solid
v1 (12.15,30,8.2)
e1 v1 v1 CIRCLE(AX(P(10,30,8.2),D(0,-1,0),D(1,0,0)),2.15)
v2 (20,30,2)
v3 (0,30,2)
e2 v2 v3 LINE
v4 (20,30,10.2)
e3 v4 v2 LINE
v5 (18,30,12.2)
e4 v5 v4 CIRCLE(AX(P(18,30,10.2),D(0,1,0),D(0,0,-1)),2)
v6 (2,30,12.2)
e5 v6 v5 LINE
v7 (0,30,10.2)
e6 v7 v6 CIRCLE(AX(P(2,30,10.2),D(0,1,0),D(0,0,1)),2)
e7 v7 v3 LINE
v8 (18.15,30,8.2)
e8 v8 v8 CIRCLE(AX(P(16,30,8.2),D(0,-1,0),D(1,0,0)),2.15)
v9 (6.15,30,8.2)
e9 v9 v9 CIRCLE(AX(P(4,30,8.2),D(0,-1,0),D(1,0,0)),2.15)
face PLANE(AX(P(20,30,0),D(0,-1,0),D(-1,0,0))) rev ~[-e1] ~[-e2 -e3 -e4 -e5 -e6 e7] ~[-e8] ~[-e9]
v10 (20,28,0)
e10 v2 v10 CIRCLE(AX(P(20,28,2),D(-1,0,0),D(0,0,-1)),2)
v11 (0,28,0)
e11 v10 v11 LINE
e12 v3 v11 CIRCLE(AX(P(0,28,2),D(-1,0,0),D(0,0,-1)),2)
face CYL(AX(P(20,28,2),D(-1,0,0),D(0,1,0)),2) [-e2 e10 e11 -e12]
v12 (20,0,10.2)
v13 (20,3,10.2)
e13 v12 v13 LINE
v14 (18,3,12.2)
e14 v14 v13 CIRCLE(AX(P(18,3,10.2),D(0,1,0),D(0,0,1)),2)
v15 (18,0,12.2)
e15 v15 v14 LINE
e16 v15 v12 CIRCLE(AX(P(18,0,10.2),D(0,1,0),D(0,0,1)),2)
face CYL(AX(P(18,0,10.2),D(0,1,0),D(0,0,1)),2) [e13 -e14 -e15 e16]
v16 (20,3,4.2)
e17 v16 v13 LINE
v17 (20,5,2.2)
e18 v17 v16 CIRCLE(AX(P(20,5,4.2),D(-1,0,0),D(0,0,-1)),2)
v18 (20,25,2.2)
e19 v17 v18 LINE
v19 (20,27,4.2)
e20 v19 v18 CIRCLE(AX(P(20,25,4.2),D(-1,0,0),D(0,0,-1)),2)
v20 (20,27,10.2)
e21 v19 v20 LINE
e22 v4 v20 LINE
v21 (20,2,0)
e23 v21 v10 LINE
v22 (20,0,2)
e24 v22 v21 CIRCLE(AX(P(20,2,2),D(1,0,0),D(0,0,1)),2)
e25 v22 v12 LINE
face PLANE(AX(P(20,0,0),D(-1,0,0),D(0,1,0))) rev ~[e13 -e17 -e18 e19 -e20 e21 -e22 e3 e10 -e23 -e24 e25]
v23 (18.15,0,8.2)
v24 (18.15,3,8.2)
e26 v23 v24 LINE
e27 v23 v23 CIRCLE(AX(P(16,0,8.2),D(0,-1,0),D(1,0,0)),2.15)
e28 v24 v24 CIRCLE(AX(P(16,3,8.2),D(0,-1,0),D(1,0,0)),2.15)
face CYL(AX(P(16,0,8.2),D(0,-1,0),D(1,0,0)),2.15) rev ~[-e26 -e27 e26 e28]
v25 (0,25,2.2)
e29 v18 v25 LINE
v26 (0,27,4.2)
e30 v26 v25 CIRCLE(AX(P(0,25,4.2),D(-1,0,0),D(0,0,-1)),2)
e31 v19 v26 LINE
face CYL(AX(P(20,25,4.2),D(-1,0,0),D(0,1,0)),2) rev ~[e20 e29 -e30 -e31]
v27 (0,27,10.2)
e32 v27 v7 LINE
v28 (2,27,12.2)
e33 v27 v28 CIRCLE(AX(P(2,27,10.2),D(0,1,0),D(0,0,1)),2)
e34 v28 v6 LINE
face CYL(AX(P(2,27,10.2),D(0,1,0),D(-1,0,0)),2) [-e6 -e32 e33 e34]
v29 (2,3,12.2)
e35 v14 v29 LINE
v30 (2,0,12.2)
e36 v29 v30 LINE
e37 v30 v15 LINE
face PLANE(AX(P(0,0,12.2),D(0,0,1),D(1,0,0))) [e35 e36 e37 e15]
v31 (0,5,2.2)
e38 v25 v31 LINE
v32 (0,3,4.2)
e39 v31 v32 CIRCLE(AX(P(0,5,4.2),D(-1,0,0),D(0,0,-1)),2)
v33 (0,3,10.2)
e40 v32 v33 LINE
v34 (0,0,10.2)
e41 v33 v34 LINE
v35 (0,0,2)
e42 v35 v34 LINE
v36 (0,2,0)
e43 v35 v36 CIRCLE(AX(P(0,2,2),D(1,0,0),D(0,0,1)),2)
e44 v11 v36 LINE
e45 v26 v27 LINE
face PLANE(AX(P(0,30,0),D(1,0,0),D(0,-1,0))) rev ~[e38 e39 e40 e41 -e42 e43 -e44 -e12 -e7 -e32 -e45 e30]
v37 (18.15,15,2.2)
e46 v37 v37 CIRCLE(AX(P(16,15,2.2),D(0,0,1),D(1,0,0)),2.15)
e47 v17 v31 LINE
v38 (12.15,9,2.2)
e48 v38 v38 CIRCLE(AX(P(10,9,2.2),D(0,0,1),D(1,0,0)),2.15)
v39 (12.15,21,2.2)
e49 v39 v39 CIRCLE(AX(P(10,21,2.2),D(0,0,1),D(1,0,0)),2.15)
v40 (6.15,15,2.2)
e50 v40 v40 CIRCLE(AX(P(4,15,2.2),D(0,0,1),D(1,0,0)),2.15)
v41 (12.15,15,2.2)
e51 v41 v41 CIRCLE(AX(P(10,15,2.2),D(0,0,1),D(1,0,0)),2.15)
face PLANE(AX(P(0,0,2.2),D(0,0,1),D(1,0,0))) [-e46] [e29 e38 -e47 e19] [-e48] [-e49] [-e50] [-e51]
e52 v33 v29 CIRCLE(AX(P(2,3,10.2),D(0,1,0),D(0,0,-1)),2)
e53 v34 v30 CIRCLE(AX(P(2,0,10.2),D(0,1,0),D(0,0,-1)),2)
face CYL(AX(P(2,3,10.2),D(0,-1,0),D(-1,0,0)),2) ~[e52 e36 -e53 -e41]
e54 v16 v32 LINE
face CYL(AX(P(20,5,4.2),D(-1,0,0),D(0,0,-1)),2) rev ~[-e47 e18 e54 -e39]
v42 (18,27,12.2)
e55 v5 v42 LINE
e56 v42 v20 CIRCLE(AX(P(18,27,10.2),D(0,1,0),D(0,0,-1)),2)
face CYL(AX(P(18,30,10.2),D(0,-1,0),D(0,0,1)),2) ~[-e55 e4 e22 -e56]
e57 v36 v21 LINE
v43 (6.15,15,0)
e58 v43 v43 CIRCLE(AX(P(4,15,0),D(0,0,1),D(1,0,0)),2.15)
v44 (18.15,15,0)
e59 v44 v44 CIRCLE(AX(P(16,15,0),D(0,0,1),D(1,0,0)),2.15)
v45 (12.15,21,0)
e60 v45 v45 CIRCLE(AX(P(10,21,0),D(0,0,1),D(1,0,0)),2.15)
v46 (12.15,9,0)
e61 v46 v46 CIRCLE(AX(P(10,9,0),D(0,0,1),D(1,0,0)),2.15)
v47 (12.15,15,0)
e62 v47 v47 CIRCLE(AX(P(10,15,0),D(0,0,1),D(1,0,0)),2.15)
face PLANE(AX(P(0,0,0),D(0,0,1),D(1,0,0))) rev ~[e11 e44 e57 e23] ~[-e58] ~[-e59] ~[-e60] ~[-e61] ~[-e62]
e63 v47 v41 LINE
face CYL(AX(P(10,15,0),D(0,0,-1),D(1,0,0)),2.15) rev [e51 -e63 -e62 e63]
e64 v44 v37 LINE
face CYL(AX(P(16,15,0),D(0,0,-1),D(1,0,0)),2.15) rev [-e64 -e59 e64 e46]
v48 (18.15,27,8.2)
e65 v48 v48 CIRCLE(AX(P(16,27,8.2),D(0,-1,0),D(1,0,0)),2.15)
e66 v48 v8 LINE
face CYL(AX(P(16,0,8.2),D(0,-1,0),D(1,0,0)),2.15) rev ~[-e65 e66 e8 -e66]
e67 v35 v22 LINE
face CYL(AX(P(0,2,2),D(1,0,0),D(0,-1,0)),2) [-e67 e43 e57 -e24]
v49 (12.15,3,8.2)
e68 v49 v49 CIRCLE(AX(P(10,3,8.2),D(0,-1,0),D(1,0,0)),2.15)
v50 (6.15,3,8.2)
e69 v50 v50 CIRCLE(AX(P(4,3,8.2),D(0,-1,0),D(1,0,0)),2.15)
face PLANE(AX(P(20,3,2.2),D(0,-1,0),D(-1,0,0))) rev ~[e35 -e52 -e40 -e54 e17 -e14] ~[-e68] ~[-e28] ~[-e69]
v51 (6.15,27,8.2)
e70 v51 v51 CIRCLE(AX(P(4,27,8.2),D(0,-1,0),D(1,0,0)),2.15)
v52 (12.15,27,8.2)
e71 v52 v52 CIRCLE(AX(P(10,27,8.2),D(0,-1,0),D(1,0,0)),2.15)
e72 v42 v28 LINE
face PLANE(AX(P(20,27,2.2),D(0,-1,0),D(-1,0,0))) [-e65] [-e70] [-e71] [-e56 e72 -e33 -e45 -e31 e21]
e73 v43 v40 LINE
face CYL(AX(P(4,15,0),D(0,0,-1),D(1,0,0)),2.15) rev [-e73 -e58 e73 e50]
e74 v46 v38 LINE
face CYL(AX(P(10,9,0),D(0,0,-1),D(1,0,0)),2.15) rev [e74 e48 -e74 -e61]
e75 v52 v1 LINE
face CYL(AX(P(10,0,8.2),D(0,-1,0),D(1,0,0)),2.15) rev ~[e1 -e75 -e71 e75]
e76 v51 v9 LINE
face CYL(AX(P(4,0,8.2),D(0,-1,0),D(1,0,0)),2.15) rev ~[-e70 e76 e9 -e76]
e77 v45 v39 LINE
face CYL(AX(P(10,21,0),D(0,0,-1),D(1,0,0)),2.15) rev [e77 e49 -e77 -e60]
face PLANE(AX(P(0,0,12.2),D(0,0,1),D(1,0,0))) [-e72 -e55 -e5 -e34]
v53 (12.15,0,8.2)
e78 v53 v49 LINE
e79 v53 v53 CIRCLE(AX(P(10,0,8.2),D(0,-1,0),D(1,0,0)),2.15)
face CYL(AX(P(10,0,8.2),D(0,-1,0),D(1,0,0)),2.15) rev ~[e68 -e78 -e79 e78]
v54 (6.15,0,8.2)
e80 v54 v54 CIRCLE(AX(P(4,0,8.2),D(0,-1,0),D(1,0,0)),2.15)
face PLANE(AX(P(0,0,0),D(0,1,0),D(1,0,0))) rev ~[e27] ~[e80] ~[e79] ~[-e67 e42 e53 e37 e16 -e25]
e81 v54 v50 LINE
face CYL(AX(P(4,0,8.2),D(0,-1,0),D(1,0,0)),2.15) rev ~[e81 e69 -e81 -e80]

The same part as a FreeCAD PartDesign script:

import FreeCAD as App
import Part
import Sketcher

V = App.Vector
Q = App.Units.Quantity


def edges_at(feature, points):
    """Names of the edges that pass closest to the given points."""
    edges = feature.Shape.Edges
    near = lambda p: min(range(len(edges)), key=lambda i: edges[i].distToShape(Part.Vertex(*p))[0])
    return sorted({f"Edge{near(p) + 1}" for p in points})

doc = App.newDocument("Part")
body = doc.addObject("PartDesign::Body", "Body")

# Sketch on XY plane
sketch1 = body.newObject("Sketcher::SketchObject", "Sketch")
sketch1.AttachmentSupport = (doc.getObject("XY_Plane"), [""])
sketch1.MapMode = "FlatFace"
sketch1.addGeometry([
    Part.LineSegment(V(0, 30, 0), V(0, 0, 0)),  # 0
    Part.LineSegment(V(0, 0, 0), V(20, 0, 0)),  # 1
    Part.LineSegment(V(20, 0, 0), V(20, 30, 0)),  # 2
    Part.LineSegment(V(20, 30, 0), V(0, 30, 0)),  # 3
    Part.Circle(V(10, 9, 0), V(0, 0, 1), 2.1),  # 4
    Part.Circle(V(4, 15, 0), V(0, 0, 1), 2.1),  # 5
    Part.Circle(V(10, 15, 0), V(0, 0, 1), 2.1),  # 6
    Part.Circle(V(10, 21, 0), V(0, 0, 1), 2.1),  # 7
    Part.Circle(V(16, 15, 0), V(0, 0, 1), 2.1),  # 8
], False)
sketch1.addConstraint([
    Sketcher.Constraint("Coincident", 0, 2, 1, 1),
    Sketcher.Constraint("Coincident", 1, 2, 2, 1),
    Sketcher.Constraint("Coincident", 2, 2, 3, 1),
    Sketcher.Constraint("Coincident", 3, 2, 0, 1),
    Sketcher.Constraint("Vertical", 0),
    Sketcher.Constraint("Horizontal", 1),
    Sketcher.Constraint("Vertical", 2),
    Sketcher.Constraint("Horizontal", 3),
    Sketcher.Constraint("Coincident", 0, 2, -1, 1),
    Sketcher.Constraint("Equal", 4, 5),
    Sketcher.Constraint("Equal", 5, 6),
    Sketcher.Constraint("Equal", 6, 7),
    Sketcher.Constraint("Equal", 7, 8),
    Sketcher.Constraint("Horizontal", 5, 3, 6, 3),
    Sketcher.Constraint("Horizontal", 6, 3, 8, 3),
    Sketcher.Constraint("Vertical", 4, 3, 6, 3),
    Sketcher.Constraint("Vertical", 6, 3, 7, 3),
    Sketcher.Constraint("Diameter", 4, Q("4.3 mm")),
    Sketcher.Constraint("DistanceX", 1, 1, 1, 2, Q("20 mm")),
    Sketcher.Constraint("DistanceY", 0, 2, 0, 1, Q("30 mm")),
    Sketcher.Constraint("DistanceX", -1, 1, 4, 3, Q("10 mm")),
    Sketcher.Constraint("DistanceX", 5, 3, 4, 3, Q("6 mm")),
    Sketcher.Constraint("DistanceY", 4, 3, 5, 3, Q("6 mm")),
    Sketcher.Constraint("DistanceY", 6, 3, 7, 3, Q("6 mm")),
    Sketcher.Constraint("DistanceX", 6, 3, 8, 3, Q("6 mm")),
    Sketcher.Constraint("DistanceY", -1, 1, 4, 3, Q("9 mm")),
])
pad1 = body.newObject("PartDesign::Pad", "Pad")
pad1.Profile = sketch1
pad1.Length = 2.2

# Sketch on XY plane
sketch2 = body.newObject("Sketcher::SketchObject", "Sketch001")
sketch2.AttachmentSupport = (doc.getObject("XY_Plane"), [""])
sketch2.MapMode = "FlatFace"
sketch2.AttachmentOffset = App.Placement(V(0, 0, 2.2), App.Rotation())
sketch2.addGeometry([
    Part.LineSegment(V(20, 30, 0), V(0, 30, 0)),  # 0
    Part.LineSegment(V(0, 30, 0), V(0, 27, 0)),  # 1
    Part.LineSegment(V(0, 27, 0), V(20, 27, 0)),  # 2
    Part.LineSegment(V(20, 27, 0), V(20, 30, 0)),  # 3
    Part.LineSegment(V(0, 3, 0), V(0, 0, 0)),  # 4
    Part.LineSegment(V(0, 0, 0), V(20, 0, 0)),  # 5
    Part.LineSegment(V(20, 0, 0), V(20, 3, 0)),  # 6
    Part.LineSegment(V(20, 3, 0), V(0, 3, 0)),  # 7
], False)
sketch2.addConstraint([
    Sketcher.Constraint("Coincident", 0, 2, 1, 1),
    Sketcher.Constraint("Coincident", 1, 2, 2, 1),
    Sketcher.Constraint("Coincident", 2, 2, 3, 1),
    Sketcher.Constraint("Coincident", 3, 2, 0, 1),
    Sketcher.Constraint("Coincident", 4, 2, 5, 1),
    Sketcher.Constraint("Coincident", 5, 2, 6, 1),
    Sketcher.Constraint("Coincident", 6, 2, 7, 1),
    Sketcher.Constraint("Coincident", 7, 2, 4, 1),
    Sketcher.Constraint("Horizontal", 0),
    Sketcher.Constraint("Vertical", 1),
    Sketcher.Constraint("Horizontal", 2),
    Sketcher.Constraint("Vertical", 3),
    Sketcher.Constraint("Vertical", 4),
    Sketcher.Constraint("Horizontal", 5),
    Sketcher.Constraint("Vertical", 6),
    Sketcher.Constraint("Horizontal", 7),
    Sketcher.Constraint("Coincident", 4, 2, -1, 1),
    Sketcher.Constraint("PointOnObject", 0, 2, -2),
    Sketcher.Constraint("Vertical", 3, 2, 5, 2),
    Sketcher.Constraint("Equal", 3, 4),
    Sketcher.Constraint("DistanceY", 1, 2, 1, 1, Q("3 mm")),
    Sketcher.Constraint("DistanceX", 0, 2, 0, 1, Q("20 mm")),
    Sketcher.Constraint("DistanceY", -1, 1, 0, 2, Q("30 mm")),
])
pad2 = body.newObject("PartDesign::Pad", "Pad001")
pad2.Profile = sketch2
pad2.Length = 10

# Sketch on XZ plane
sketch3 = body.newObject("Sketcher::SketchObject", "Sketch002")
sketch3.AttachmentSupport = (doc.getObject("XZ_Plane"), [""])
sketch3.MapMode = "FlatFace"
sketch3.addGeometry([
    Part.Circle(V(10, 8.2, 0), V(0, 0, 1), 2.1),
    Part.Circle(V(16, 8.2, 0), V(0, 0, 1), 2.1),
    Part.Circle(V(4, 8.2, 0), V(0, 0, 1), 2.1),
], False)
sketch3.addConstraint([
    Sketcher.Constraint("Equal", 0, 1),
    Sketcher.Constraint("Equal", 1, 2),
    Sketcher.Constraint("Horizontal", 0, 3, 1, 3),
    Sketcher.Constraint("Horizontal", 1, 3, 2, 3),
    Sketcher.Constraint("Diameter", 0, Q("4.3 mm")),
    Sketcher.Constraint("DistanceX", -1, 1, 2, 3, Q("4 mm")),
    Sketcher.Constraint("DistanceX", 0, 3, 1, 3, Q("6 mm")),
    Sketcher.Constraint("DistanceX", 2, 3, 0, 3, Q("6 mm")),
    Sketcher.Constraint("DistanceY", -1, 1, 0, 3, Q("8.2 mm")),
])
pocket1 = body.newObject("PartDesign::Pocket", "Pocket")
pocket1.Profile = sketch3
pocket1.Type = "ThroughAll"
doc.recompute()

fillet = body.newObject("PartDesign::Fillet", "Fillet")
fillet.Base = (pocket1, edges_at(pocket1, [
    (10, 0, 0),
    (10, 3, 2.2),
    (10, 27, 2.2),
    (0, 28.5, 12.2),
    (20, 28.5, 12.2),
    (20, 1.5, 12.2),
    (0, 1.5, 12.2),
    (10, 30, 0),
]))
fillet.Radius = 2

doc.recompute()
